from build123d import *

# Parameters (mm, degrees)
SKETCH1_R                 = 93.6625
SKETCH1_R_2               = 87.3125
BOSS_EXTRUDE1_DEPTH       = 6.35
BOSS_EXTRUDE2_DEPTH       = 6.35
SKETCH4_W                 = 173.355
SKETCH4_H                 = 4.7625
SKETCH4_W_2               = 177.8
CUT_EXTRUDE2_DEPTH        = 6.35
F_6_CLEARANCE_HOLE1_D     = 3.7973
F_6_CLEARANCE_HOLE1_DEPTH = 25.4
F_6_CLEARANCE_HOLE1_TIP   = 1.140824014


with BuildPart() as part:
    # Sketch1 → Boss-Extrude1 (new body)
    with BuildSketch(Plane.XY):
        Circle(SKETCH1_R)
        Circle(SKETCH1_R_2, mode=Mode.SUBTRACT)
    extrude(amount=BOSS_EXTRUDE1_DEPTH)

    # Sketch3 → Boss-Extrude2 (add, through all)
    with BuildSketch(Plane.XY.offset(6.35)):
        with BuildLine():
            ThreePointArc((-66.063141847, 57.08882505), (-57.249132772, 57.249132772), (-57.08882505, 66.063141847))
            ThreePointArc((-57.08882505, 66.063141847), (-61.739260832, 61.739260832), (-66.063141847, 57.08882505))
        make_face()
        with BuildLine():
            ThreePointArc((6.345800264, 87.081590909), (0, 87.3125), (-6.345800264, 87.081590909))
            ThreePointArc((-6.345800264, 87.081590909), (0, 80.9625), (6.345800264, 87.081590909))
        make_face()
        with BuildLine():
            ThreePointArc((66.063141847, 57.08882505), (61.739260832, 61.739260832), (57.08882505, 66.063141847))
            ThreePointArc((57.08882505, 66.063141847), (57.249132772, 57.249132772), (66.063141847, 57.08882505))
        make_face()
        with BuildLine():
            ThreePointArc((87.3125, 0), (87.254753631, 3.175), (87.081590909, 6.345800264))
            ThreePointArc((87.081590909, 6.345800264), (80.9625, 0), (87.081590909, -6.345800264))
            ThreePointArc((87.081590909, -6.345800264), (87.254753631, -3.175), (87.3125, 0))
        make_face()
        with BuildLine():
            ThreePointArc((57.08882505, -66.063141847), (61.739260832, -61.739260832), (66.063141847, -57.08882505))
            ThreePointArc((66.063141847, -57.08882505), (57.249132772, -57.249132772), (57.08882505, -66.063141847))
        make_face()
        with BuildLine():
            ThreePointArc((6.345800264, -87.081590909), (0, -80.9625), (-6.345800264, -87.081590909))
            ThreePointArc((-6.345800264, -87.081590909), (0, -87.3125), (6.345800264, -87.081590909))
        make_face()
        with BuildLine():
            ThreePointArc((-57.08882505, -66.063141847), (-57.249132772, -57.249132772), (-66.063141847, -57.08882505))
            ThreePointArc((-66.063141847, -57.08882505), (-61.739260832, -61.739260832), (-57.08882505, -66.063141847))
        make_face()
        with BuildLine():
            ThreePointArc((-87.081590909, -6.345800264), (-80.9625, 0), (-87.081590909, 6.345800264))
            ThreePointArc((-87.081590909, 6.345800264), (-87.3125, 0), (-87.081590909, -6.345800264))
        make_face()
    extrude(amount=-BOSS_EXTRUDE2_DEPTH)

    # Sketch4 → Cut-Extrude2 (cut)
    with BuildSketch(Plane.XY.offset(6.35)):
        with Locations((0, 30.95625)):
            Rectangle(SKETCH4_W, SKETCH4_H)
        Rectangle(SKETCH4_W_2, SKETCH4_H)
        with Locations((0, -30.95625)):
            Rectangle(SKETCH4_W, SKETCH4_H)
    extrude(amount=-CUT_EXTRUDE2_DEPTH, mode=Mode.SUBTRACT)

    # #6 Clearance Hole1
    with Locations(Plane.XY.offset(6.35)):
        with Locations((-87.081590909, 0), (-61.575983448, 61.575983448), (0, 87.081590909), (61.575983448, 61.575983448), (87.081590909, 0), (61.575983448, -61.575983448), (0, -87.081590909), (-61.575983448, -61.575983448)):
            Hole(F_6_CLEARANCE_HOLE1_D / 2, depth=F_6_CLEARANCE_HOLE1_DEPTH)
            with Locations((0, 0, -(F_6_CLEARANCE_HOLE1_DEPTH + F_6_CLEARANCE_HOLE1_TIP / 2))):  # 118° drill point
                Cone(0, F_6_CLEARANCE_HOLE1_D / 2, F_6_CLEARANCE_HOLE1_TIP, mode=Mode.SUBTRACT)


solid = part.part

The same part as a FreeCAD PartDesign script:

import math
import FreeCAD as App
import Part
import Sketcher
from FreeCAD import Vector
Q = App.Units.Quantity

doc = App.newDocument("Part")
body = doc.addObject("PartDesign::Body", "Body")

sketch1 = body.newObject("Sketcher::SketchObject", "Sketch")
sketch1.AttachmentSupport = (doc.getObject("XY_Plane"), [""])
sketch1.MapMode = "FlatFace"
sketch1.addGeometry(Part.Circle(Vector(0, 0, 0), Vector(0, 0, 1), 94), False)
sketch1.addGeometry(Part.Circle(Vector(0, 0, 0), Vector(0, 0, 1), 87), False)
sketch1.addConstraint(Sketcher.Constraint("Coincident", 0, 3, -1, 1))
sketch1.addConstraint(Sketcher.Constraint("Coincident", 1, 3, -1, 1))
sketch1.addConstraint(Sketcher.Constraint("Diameter", 0, Q("7.375 in")))
sketch1.addConstraint(Sketcher.Constraint("Diameter", 1, Q("6.875 in")))
pad1 = body.newObject("PartDesign::Pad", "Pad")
pad1.Profile = sketch1
pad1.Length = Q("0.25 in")

sketch2 = body.newObject("Sketcher::SketchObject", "Sketch001")
sketch2.AttachmentSupport = (doc.getObject("XY_Plane"), [""])
sketch2.MapMode = "FlatFace"
sketch2.AttachmentOffset = App.Placement(Vector(0, 0, 0.25 * 25.4), App.Rotation())
sketch2.addGeometry(Part.ArcOfCircle(Part.Circle(Vector(-62, 62, 0), Vector(0, 0, 1), 6), math.radians(-133), math.radians(43)), False)
sketch2.addGeometry(Part.ArcOfCircle(Part.Circle(Vector(0, 0, 0), Vector(0, 0, 1), 87), math.radians(130.83), math.radians(139.17)), False)
sketch2.addGeometry(Part.ArcOfCircle(Part.Circle(Vector(0, 0, 0), Vector(0, 0, 1), 87), math.radians(85.83), math.radians(94.17)), False)
sketch2.addGeometry(Part.ArcOfCircle(Part.Circle(Vector(0, 87, 0), Vector(0, 0, 1), 6), math.radians(-178), math.radians(-2)), False)
sketch2.addGeometry(Part.ArcOfCircle(Part.Circle(Vector(0, 0, 0), Vector(0, 0, 1), 87), math.radians(40.83), math.radians(49.17)), False)
sketch2.addGeometry(Part.ArcOfCircle(Part.Circle(Vector(62, 62, 0), Vector(0, 0, 1), 6), math.radians(137), math.radians(313)), False)
sketch2.addGeometry(Part.ArcOfCircle(Part.Circle(Vector(0, 0, 0), Vector(0, 0, 1), 87), math.radians(0), math.radians(4.17)), False)
sketch2.addGeometry(Part.ArcOfCircle(Part.Circle(Vector(87, 0, 0), Vector(0, 0, 1), 6), math.radians(92), math.radians(268)), False)
sketch2.addGeometry(Part.ArcOfCircle(Part.Circle(Vector(0, 0, 0), Vector(0, 0, 1), 87), math.radians(-4.17), math.radians(0)), False)
sketch2.addGeometry(Part.ArcOfCircle(Part.Circle(Vector(0, 0, 0), Vector(0, 0, 1), 87), math.radians(-49.17), math.radians(-40.83)), False)
sketch2.addGeometry(Part.ArcOfCircle(Part.Circle(Vector(62, -62, 0), Vector(0, 0, 1), 6), math.radians(47), math.radians(223)), False)
sketch2.addGeometry(Part.ArcOfCircle(Part.Circle(Vector(0, -87, 0), Vector(0, 0, 1), 6), math.radians(2), math.radians(178)), False)
sketch2.addGeometry(Part.ArcOfCircle(Part.Circle(Vector(0, 0, 0), Vector(0, 0, 1), 87), math.radians(-94.17), math.radians(-85.83)), False)
sketch2.addGeometry(Part.ArcOfCircle(Part.Circle(Vector(-62, -62, 0), Vector(0, 0, 1), 6), math.radians(-43), math.radians(133)), False)
sketch2.addGeometry(Part.ArcOfCircle(Part.Circle(Vector(0, 0, 0), Vector(0, 0, 1), 87), math.radians(-139.17), math.radians(-130.83)), False)
sketch2.addGeometry(Part.ArcOfCircle(Part.Circle(Vector(-87, 0, 0), Vector(0, 0, 1), 6), math.radians(-88), math.radians(88)), False)
sketch2.addGeometry(Part.ArcOfCircle(Part.Circle(Vector(0, 0, 0), Vector(0, 0, 1), 87), math.radians(175.83), math.radians(184.17)), False)
sketch2.addConstraint(Sketcher.Constraint("Coincident", 0, 1, 1, 2))
sketch2.addConstraint(Sketcher.Constraint("Coincident", 1, 1, 0, 2))
sketch2.addConstraint(Sketcher.Constraint("Coincident", 2, 1, 3, 2))
sketch2.addConstraint(Sketcher.Constraint("Coincident", 3, 1, 2, 2))
sketch2.addConstraint(Sketcher.Constraint("Coincident", 4, 1, 5, 2))
sketch2.addConstraint(Sketcher.Constraint("Coincident", 5, 1, 4, 2))
sketch2.addConstraint(Sketcher.Constraint("Coincident", 6, 2, 7, 1))
sketch2.addConstraint(Sketcher.Constraint("Coincident", 7, 2, 8, 1))
sketch2.addConstraint(Sketcher.Constraint("Tangent", 8, 2, 6, 1))
sketch2.addConstraint(Sketcher.Constraint("Coincident", 9, 1, 10, 2))
sketch2.addConstraint(Sketcher.Constraint("Coincident", 10, 1, 9, 2))
sketch2.addConstraint(Sketcher.Constraint("Coincident", 11, 1, 12, 2))
sketch2.addConstraint(Sketcher.Constraint("Coincident", 12, 1, 11, 2))
sketch2.addConstraint(Sketcher.Constraint("Coincident", 13, 1, 14, 2))
sketch2.addConstraint(Sketcher.Constraint("Coincident", 14, 1, 13, 2))
sketch2.addConstraint(Sketcher.Constraint("Coincident", 15, 1, 16, 2))
sketch2.addConstraint(Sketcher.Constraint("Coincident", 16, 1, 15, 2))
sketch2.addConstraint(Sketcher.Constraint("Coincident", 1, 3, -1, 1))
sketch2.addConstraint(Sketcher.Constraint("Coincident", 2, 3, -1, 1))
sketch2.addConstraint(Sketcher.Constraint("Coincident", 4, 3, -1, 1))
sketch2.addConstraint(Sketcher.Constraint("Coincident", 6, 3, -1, 1))
sketch2.addConstraint(Sketcher.Constraint("Coincident", 9, 3, -1, 1))
sketch2.addConstraint(Sketcher.Constraint("Coincident", 12, 3, -1, 1))
sketch2.addConstraint(Sketcher.Constraint("Coincident", 14, 3, -1, 1))
sketch2.addConstraint(Sketcher.Constraint("Coincident", 16, 3, -1, 1))
sketch2.addConstraint(Sketcher.Constraint("Coincident", 8, 2, 7, 3))
sketch2.addConstraint(Sketcher.Constraint("Equal", 1, 2))
sketch2.addConstraint(Sketcher.Constraint("Equal", 0, 3))
sketch2.addConstraint(Sketcher.Constraint("Equal", 2, 4))
sketch2.addConstraint(Sketcher.Constraint("Equal", 3, 5))
sketch2.addConstraint(Sketcher.Constraint("Equal", 4, 6))
sketch2.addConstraint(Sketcher.Constraint("Equal", 5, 7))
sketch2.addConstraint(Sketcher.Constraint("Equal", 6, 8))
sketch2.addConstraint(Sketcher.Constraint("Equal", 8, 9))
sketch2.addConstraint(Sketcher.Constraint("Equal", 7, 10))
sketch2.addConstraint(Sketcher.Constraint("Equal", 10, 11))
sketch2.addConstraint(Sketcher.Constraint("Equal", 9, 12))
sketch2.addConstraint(Sketcher.Constraint("Equal", 11, 13))
sketch2.addConstraint(Sketcher.Constraint("Equal", 12, 14))
sketch2.addConstraint(Sketcher.Constraint("Equal", 13, 15))
sketch2.addConstraint(Sketcher.Constraint("Equal", 14, 16))
sketch2.addConstraint(Sketcher.Constraint("Symmetric", 0, 3, 10, 3, -1, 1))
sketch2.addConstraint(Sketcher.Constraint("Symmetric", 3, 3, 11, 3, -1, 1))
sketch2.addConstraint(Sketcher.Constraint("Symmetric", 5, 3, 13, 3, -1, 1))
sketch2.addConstraint(Sketcher.Constraint("Symmetric", 7, 3, 15, 3, -1, 1))
sketch2.addConstraint(Sketcher.Constraint("Symmetric", 0, 3, 5, 3, -2))
sketch2.addConstraint(Sketcher.Constraint("PointOnObject", 3, 3, -2))
sketch2.addConstraint(Sketcher.Constraint("PointOnObject", 7, 3, -1))
sketch2.addConstraint(Sketcher.Constraint("Radius", 0, Q("0.25 in")))
sketch2.addConstraint(Sketcher.Constraint("Radius", 1, Q("3.4375 in")))
sketch2.addConstraint(Sketcher.Constraint("DistanceY", -1, 1, 3, 3, Q("3.4375 in")))
sketch2.addConstraint(Sketcher.Constraint("DistanceX", 0, 3, -1, 1, 61.739261))
sketch2.addConstraint(Sketcher.Constraint("DistanceY", -1, 1, 0, 3, 61.739261))
pad2 = body.newObject("PartDesign::Pad", "Pad001")
pad2.Profile = sketch2
pad2.Length = Q("0.25 in")
pad2.Reversed = True

sketch3 = body.newObject("Sketcher::SketchObject", "Sketch002")
sketch3.AttachmentSupport = (doc.getObject("XY_Plane"), [""])
sketch3.MapMode = "FlatFace"
sketch3.AttachmentOffset = App.Placement(Vector(0, 0, 0.25 * 25.4), App.Rotation())
sketch3.addGeometry(Part.LineSegment(Vector(-86.7, 33.3, 0), Vector(-86.7, 28.6, 0)), False)
sketch3.addGeometry(Part.LineSegment(Vector(-86.7, 28.6, 0), Vector(86.7, 28.6, 0)), False)
sketch3.addGeometry(Part.LineSegment(Vector(86.7, 28.6, 0), Vector(86.7, 33.3, 0)), False)
sketch3.addGeometry(Part.LineSegment(Vector(86.7, 33.3, 0), Vector(-86.7, 33.3, 0)), False)
sketch3.addGeometry(Part.LineSegment(Vector(-88.9, 2.4, 0), Vector(-88.9, -2.4, 0)), False)
sketch3.addGeometry(Part.LineSegment(Vector(-88.9, -2.4, 0), Vector(88.9, -2.4, 0)), False)
sketch3.addGeometry(Part.LineSegment(Vector(88.9, -2.4, 0), Vector(88.9, 2.4, 0)), False)
sketch3.addGeometry(Part.LineSegment(Vector(88.9, 2.4, 0), Vector(-88.9, 2.4, 0)), False)
sketch3.addGeometry(Part.LineSegment(Vector(-86.7, -28.6, 0), Vector(-86.7, -33.3, 0)), False)
sketch3.addGeometry(Part.LineSegment(Vector(-86.7, -33.3, 0), Vector(86.7, -33.3, 0)), False)
sketch3.addGeometry(Part.LineSegment(Vector(86.7, -33.3, 0), Vector(86.7, -28.6, 0)), False)
sketch3.addGeometry(Part.LineSegment(Vector(86.7, -28.6, 0), Vector(-86.7, -28.6, 0)), False)
sketch3.addConstraint(Sketcher.Constraint("Coincident", 0, 2, 1, 1))
sketch3.addConstraint(Sketcher.Constraint("Coincident", 1, 2, 2, 1))
sketch3.addConstraint(Sketcher.Constraint("Coincident", 2, 2, 3, 1))
sketch3.addConstraint(Sketcher.Constraint("Coincident", 3, 2, 0, 1))
sketch3.addConstraint(Sketcher.Constraint("Coincident", 4, 2, 5, 1))
sketch3.addConstraint(Sketcher.Constraint("Coincident", 5, 2, 6, 1))
sketch3.addConstraint(Sketcher.Constraint("Coincident", 6, 2, 7, 1))
sketch3.addConstraint(Sketcher.Constraint("Coincident", 7, 2, 4, 1))
sketch3.addConstraint(Sketcher.Constraint("Coincident", 8, 2, 9, 1))
sketch3.addConstraint(Sketcher.Constraint("Coincident", 9, 2, 10, 1))
sketch3.addConstraint(Sketcher.Constraint("Coincident", 10, 2, 11, 1))
sketch3.addConstraint(Sketcher.Constraint("Coincident", 11, 2, 8, 1))
sketch3.addConstraint(Sketcher.Constraint("Vertical", 0))
sketch3.addConstraint(Sketcher.Constraint("Horizontal", 1))
sketch3.addConstraint(Sketcher.Constraint("Vertical", 2))
sketch3.addConstraint(Sketcher.Constraint("Horizontal", 3))
sketch3.addConstraint(Sketcher.Constraint("Vertical", 4))
sketch3.addConstraint(Sketcher.Constraint("Horizontal", 5))
sketch3.addConstraint(Sketcher.Constraint("Vertical", 6))
sketch3.addConstraint(Sketcher.Constraint("Horizontal", 7))
sketch3.addConstraint(Sketcher.Constraint("Vertical", 8))
sketch3.addConstraint(Sketcher.Constraint("Horizontal", 9))
sketch3.addConstraint(Sketcher.Constraint("Vertical", 10))
sketch3.addConstraint(Sketcher.Constraint("Horizontal", 11))
sketch3.addConstraint(Sketcher.Constraint("Symmetric", 4, 2, 6, 2, -1, 1))
sketch3.addConstraint(Sketcher.Constraint("Symmetric", 2, 2, 8, 2, -1, 1))
sketch3.addConstraint(Sketcher.Constraint("Symmetric", 0, 2, 10, 2, -1, 1))
sketch3.addConstraint(Sketcher.Constraint("Vertical", 3, 2, 8, 2))
sketch3.addConstraint(Sketcher.Constraint("Equal", 2, 4))
sketch3.addConstraint(Sketcher.Constraint("DistanceX", 5, 1, 5, 2, Q("7 in")))
sketch3.addConstraint(Sketcher.Constraint("DistanceX", 1, 1, 1, 2, Q("6.825 in")))
sketch3.addConstraint(Sketcher.Constraint("DistanceY", 0, 2, 0, 1, Q("0.1875 in")))
sketch3.addConstraint(Sketcher.Constraint("DistanceY", 10, 2, 1, 2, Q("2.25 in")))
pocket1 = body.newObject("PartDesign::Pocket", "Pocket")
pocket1.Profile = sketch3
pocket1.Length = Q("0.25 in")

sketch4 = body.newObject("Sketcher::SketchObject", "Sketch003")
sketch4.AttachmentSupport = (doc.getObject("XY_Plane"), [""])
sketch4.MapMode = "FlatFace"
sketch4.AttachmentOffset = App.Placement(Vector(0, 0, 0.25 * 25.4), App.Rotation())
sketch4.addGeometry(Part.Circle(Vector(-87.1, 0, 0), Vector(0, 0, 1), 1.9), False)
sketch4.addGeometry(Part.Circle(Vector(-61.6, 61.6, 0), Vector(0, 0, 1), 1.9), False)
sketch4.addGeometry(Part.Circle(Vector(0, 87.1, 0), Vector(0, 0, 1), 1.9), False)
sketch4.addGeometry(Part.Circle(Vector(61.6, 61.6, 0), Vector(0, 0, 1), 1.9), False)
sketch4.addGeometry(Part.Circle(Vector(87.1, 0, 0), Vector(0, 0, 1), 1.9), False)
sketch4.addGeometry(Part.Circle(Vector(61.6, -61.6, 0), Vector(0, 0, 1), 1.9), False)
sketch4.addGeometry(Part.Circle(Vector(0, -87.1, 0), Vector(0, 0, 1), 1.9), False)
sketch4.addGeometry(Part.Circle(Vector(-61.6, -61.6, 0), Vector(0, 0, 1), 1.9), False)
sketch4.addConstraint(Sketcher.Constraint("Equal", 0, 1))
sketch4.addConstraint(Sketcher.Constraint("Equal", 1, 2))
sketch4.addConstraint(Sketcher.Constraint("Equal", 2, 3))
sketch4.addConstraint(Sketcher.Constraint("Equal", 3, 4))
sketch4.addConstraint(Sketcher.Constraint("Equal", 4, 5))
sketch4.addConstraint(Sketcher.Constraint("Equal", 5, 6))
sketch4.addConstraint(Sketcher.Constraint("Equal", 6, 7))
sketch4.addConstraint(Sketcher.Constraint("Symmetric", 0, 3, 4, 3, -1, 1))
sketch4.addConstraint(Sketcher.Constraint("Symmetric", 1, 3, 5, 3, -1, 1))
sketch4.addConstraint(Sketcher.Constraint("Symmetric", 2, 3, 6, 3, -1, 1))
sketch4.addConstraint(Sketcher.Constraint("Symmetric", 3, 3, 7, 3, -1, 1))
sketch4.addConstraint(Sketcher.Constraint("Symmetric", 1, 3, 3, 3, -2))
sketch4.addConstraint(Sketcher.Constraint("PointOnObject", 0, 3, -1))
sketch4.addConstraint(Sketcher.Constraint("PointOnObject", 2, 3, -2))
sketch4.addConstraint(Sketcher.Constraint("Diameter", 0, Q("0.1495 in")))
sketch4.addConstraint(Sketcher.Constraint("DistanceX", 0, 3, -1, 1, 87.081591))
sketch4.addConstraint(Sketcher.Constraint("DistanceY", -1, 1, 2, 3, 87.081591))
sketch4.addConstraint(Sketcher.Constraint("DistanceX", 1, 3, -1, 1, 61.575983))
sketch4.addConstraint(Sketcher.Constraint("DistanceY", -1, 1, 1, 3, 61.575983))
doc.recompute()
hole = body.newObject("PartDesign::Hole", "Hole")
hole.Profile = sketch4
hole.ThreadType = "None"
hole.Diameter = Q("0.1495 in")
hole.DepthType = "Dimension"
hole.Depth = Q("1 in")
hole.DrillPoint = "Angled"
hole.DrillPointAngle = 118

doc.recompute()
